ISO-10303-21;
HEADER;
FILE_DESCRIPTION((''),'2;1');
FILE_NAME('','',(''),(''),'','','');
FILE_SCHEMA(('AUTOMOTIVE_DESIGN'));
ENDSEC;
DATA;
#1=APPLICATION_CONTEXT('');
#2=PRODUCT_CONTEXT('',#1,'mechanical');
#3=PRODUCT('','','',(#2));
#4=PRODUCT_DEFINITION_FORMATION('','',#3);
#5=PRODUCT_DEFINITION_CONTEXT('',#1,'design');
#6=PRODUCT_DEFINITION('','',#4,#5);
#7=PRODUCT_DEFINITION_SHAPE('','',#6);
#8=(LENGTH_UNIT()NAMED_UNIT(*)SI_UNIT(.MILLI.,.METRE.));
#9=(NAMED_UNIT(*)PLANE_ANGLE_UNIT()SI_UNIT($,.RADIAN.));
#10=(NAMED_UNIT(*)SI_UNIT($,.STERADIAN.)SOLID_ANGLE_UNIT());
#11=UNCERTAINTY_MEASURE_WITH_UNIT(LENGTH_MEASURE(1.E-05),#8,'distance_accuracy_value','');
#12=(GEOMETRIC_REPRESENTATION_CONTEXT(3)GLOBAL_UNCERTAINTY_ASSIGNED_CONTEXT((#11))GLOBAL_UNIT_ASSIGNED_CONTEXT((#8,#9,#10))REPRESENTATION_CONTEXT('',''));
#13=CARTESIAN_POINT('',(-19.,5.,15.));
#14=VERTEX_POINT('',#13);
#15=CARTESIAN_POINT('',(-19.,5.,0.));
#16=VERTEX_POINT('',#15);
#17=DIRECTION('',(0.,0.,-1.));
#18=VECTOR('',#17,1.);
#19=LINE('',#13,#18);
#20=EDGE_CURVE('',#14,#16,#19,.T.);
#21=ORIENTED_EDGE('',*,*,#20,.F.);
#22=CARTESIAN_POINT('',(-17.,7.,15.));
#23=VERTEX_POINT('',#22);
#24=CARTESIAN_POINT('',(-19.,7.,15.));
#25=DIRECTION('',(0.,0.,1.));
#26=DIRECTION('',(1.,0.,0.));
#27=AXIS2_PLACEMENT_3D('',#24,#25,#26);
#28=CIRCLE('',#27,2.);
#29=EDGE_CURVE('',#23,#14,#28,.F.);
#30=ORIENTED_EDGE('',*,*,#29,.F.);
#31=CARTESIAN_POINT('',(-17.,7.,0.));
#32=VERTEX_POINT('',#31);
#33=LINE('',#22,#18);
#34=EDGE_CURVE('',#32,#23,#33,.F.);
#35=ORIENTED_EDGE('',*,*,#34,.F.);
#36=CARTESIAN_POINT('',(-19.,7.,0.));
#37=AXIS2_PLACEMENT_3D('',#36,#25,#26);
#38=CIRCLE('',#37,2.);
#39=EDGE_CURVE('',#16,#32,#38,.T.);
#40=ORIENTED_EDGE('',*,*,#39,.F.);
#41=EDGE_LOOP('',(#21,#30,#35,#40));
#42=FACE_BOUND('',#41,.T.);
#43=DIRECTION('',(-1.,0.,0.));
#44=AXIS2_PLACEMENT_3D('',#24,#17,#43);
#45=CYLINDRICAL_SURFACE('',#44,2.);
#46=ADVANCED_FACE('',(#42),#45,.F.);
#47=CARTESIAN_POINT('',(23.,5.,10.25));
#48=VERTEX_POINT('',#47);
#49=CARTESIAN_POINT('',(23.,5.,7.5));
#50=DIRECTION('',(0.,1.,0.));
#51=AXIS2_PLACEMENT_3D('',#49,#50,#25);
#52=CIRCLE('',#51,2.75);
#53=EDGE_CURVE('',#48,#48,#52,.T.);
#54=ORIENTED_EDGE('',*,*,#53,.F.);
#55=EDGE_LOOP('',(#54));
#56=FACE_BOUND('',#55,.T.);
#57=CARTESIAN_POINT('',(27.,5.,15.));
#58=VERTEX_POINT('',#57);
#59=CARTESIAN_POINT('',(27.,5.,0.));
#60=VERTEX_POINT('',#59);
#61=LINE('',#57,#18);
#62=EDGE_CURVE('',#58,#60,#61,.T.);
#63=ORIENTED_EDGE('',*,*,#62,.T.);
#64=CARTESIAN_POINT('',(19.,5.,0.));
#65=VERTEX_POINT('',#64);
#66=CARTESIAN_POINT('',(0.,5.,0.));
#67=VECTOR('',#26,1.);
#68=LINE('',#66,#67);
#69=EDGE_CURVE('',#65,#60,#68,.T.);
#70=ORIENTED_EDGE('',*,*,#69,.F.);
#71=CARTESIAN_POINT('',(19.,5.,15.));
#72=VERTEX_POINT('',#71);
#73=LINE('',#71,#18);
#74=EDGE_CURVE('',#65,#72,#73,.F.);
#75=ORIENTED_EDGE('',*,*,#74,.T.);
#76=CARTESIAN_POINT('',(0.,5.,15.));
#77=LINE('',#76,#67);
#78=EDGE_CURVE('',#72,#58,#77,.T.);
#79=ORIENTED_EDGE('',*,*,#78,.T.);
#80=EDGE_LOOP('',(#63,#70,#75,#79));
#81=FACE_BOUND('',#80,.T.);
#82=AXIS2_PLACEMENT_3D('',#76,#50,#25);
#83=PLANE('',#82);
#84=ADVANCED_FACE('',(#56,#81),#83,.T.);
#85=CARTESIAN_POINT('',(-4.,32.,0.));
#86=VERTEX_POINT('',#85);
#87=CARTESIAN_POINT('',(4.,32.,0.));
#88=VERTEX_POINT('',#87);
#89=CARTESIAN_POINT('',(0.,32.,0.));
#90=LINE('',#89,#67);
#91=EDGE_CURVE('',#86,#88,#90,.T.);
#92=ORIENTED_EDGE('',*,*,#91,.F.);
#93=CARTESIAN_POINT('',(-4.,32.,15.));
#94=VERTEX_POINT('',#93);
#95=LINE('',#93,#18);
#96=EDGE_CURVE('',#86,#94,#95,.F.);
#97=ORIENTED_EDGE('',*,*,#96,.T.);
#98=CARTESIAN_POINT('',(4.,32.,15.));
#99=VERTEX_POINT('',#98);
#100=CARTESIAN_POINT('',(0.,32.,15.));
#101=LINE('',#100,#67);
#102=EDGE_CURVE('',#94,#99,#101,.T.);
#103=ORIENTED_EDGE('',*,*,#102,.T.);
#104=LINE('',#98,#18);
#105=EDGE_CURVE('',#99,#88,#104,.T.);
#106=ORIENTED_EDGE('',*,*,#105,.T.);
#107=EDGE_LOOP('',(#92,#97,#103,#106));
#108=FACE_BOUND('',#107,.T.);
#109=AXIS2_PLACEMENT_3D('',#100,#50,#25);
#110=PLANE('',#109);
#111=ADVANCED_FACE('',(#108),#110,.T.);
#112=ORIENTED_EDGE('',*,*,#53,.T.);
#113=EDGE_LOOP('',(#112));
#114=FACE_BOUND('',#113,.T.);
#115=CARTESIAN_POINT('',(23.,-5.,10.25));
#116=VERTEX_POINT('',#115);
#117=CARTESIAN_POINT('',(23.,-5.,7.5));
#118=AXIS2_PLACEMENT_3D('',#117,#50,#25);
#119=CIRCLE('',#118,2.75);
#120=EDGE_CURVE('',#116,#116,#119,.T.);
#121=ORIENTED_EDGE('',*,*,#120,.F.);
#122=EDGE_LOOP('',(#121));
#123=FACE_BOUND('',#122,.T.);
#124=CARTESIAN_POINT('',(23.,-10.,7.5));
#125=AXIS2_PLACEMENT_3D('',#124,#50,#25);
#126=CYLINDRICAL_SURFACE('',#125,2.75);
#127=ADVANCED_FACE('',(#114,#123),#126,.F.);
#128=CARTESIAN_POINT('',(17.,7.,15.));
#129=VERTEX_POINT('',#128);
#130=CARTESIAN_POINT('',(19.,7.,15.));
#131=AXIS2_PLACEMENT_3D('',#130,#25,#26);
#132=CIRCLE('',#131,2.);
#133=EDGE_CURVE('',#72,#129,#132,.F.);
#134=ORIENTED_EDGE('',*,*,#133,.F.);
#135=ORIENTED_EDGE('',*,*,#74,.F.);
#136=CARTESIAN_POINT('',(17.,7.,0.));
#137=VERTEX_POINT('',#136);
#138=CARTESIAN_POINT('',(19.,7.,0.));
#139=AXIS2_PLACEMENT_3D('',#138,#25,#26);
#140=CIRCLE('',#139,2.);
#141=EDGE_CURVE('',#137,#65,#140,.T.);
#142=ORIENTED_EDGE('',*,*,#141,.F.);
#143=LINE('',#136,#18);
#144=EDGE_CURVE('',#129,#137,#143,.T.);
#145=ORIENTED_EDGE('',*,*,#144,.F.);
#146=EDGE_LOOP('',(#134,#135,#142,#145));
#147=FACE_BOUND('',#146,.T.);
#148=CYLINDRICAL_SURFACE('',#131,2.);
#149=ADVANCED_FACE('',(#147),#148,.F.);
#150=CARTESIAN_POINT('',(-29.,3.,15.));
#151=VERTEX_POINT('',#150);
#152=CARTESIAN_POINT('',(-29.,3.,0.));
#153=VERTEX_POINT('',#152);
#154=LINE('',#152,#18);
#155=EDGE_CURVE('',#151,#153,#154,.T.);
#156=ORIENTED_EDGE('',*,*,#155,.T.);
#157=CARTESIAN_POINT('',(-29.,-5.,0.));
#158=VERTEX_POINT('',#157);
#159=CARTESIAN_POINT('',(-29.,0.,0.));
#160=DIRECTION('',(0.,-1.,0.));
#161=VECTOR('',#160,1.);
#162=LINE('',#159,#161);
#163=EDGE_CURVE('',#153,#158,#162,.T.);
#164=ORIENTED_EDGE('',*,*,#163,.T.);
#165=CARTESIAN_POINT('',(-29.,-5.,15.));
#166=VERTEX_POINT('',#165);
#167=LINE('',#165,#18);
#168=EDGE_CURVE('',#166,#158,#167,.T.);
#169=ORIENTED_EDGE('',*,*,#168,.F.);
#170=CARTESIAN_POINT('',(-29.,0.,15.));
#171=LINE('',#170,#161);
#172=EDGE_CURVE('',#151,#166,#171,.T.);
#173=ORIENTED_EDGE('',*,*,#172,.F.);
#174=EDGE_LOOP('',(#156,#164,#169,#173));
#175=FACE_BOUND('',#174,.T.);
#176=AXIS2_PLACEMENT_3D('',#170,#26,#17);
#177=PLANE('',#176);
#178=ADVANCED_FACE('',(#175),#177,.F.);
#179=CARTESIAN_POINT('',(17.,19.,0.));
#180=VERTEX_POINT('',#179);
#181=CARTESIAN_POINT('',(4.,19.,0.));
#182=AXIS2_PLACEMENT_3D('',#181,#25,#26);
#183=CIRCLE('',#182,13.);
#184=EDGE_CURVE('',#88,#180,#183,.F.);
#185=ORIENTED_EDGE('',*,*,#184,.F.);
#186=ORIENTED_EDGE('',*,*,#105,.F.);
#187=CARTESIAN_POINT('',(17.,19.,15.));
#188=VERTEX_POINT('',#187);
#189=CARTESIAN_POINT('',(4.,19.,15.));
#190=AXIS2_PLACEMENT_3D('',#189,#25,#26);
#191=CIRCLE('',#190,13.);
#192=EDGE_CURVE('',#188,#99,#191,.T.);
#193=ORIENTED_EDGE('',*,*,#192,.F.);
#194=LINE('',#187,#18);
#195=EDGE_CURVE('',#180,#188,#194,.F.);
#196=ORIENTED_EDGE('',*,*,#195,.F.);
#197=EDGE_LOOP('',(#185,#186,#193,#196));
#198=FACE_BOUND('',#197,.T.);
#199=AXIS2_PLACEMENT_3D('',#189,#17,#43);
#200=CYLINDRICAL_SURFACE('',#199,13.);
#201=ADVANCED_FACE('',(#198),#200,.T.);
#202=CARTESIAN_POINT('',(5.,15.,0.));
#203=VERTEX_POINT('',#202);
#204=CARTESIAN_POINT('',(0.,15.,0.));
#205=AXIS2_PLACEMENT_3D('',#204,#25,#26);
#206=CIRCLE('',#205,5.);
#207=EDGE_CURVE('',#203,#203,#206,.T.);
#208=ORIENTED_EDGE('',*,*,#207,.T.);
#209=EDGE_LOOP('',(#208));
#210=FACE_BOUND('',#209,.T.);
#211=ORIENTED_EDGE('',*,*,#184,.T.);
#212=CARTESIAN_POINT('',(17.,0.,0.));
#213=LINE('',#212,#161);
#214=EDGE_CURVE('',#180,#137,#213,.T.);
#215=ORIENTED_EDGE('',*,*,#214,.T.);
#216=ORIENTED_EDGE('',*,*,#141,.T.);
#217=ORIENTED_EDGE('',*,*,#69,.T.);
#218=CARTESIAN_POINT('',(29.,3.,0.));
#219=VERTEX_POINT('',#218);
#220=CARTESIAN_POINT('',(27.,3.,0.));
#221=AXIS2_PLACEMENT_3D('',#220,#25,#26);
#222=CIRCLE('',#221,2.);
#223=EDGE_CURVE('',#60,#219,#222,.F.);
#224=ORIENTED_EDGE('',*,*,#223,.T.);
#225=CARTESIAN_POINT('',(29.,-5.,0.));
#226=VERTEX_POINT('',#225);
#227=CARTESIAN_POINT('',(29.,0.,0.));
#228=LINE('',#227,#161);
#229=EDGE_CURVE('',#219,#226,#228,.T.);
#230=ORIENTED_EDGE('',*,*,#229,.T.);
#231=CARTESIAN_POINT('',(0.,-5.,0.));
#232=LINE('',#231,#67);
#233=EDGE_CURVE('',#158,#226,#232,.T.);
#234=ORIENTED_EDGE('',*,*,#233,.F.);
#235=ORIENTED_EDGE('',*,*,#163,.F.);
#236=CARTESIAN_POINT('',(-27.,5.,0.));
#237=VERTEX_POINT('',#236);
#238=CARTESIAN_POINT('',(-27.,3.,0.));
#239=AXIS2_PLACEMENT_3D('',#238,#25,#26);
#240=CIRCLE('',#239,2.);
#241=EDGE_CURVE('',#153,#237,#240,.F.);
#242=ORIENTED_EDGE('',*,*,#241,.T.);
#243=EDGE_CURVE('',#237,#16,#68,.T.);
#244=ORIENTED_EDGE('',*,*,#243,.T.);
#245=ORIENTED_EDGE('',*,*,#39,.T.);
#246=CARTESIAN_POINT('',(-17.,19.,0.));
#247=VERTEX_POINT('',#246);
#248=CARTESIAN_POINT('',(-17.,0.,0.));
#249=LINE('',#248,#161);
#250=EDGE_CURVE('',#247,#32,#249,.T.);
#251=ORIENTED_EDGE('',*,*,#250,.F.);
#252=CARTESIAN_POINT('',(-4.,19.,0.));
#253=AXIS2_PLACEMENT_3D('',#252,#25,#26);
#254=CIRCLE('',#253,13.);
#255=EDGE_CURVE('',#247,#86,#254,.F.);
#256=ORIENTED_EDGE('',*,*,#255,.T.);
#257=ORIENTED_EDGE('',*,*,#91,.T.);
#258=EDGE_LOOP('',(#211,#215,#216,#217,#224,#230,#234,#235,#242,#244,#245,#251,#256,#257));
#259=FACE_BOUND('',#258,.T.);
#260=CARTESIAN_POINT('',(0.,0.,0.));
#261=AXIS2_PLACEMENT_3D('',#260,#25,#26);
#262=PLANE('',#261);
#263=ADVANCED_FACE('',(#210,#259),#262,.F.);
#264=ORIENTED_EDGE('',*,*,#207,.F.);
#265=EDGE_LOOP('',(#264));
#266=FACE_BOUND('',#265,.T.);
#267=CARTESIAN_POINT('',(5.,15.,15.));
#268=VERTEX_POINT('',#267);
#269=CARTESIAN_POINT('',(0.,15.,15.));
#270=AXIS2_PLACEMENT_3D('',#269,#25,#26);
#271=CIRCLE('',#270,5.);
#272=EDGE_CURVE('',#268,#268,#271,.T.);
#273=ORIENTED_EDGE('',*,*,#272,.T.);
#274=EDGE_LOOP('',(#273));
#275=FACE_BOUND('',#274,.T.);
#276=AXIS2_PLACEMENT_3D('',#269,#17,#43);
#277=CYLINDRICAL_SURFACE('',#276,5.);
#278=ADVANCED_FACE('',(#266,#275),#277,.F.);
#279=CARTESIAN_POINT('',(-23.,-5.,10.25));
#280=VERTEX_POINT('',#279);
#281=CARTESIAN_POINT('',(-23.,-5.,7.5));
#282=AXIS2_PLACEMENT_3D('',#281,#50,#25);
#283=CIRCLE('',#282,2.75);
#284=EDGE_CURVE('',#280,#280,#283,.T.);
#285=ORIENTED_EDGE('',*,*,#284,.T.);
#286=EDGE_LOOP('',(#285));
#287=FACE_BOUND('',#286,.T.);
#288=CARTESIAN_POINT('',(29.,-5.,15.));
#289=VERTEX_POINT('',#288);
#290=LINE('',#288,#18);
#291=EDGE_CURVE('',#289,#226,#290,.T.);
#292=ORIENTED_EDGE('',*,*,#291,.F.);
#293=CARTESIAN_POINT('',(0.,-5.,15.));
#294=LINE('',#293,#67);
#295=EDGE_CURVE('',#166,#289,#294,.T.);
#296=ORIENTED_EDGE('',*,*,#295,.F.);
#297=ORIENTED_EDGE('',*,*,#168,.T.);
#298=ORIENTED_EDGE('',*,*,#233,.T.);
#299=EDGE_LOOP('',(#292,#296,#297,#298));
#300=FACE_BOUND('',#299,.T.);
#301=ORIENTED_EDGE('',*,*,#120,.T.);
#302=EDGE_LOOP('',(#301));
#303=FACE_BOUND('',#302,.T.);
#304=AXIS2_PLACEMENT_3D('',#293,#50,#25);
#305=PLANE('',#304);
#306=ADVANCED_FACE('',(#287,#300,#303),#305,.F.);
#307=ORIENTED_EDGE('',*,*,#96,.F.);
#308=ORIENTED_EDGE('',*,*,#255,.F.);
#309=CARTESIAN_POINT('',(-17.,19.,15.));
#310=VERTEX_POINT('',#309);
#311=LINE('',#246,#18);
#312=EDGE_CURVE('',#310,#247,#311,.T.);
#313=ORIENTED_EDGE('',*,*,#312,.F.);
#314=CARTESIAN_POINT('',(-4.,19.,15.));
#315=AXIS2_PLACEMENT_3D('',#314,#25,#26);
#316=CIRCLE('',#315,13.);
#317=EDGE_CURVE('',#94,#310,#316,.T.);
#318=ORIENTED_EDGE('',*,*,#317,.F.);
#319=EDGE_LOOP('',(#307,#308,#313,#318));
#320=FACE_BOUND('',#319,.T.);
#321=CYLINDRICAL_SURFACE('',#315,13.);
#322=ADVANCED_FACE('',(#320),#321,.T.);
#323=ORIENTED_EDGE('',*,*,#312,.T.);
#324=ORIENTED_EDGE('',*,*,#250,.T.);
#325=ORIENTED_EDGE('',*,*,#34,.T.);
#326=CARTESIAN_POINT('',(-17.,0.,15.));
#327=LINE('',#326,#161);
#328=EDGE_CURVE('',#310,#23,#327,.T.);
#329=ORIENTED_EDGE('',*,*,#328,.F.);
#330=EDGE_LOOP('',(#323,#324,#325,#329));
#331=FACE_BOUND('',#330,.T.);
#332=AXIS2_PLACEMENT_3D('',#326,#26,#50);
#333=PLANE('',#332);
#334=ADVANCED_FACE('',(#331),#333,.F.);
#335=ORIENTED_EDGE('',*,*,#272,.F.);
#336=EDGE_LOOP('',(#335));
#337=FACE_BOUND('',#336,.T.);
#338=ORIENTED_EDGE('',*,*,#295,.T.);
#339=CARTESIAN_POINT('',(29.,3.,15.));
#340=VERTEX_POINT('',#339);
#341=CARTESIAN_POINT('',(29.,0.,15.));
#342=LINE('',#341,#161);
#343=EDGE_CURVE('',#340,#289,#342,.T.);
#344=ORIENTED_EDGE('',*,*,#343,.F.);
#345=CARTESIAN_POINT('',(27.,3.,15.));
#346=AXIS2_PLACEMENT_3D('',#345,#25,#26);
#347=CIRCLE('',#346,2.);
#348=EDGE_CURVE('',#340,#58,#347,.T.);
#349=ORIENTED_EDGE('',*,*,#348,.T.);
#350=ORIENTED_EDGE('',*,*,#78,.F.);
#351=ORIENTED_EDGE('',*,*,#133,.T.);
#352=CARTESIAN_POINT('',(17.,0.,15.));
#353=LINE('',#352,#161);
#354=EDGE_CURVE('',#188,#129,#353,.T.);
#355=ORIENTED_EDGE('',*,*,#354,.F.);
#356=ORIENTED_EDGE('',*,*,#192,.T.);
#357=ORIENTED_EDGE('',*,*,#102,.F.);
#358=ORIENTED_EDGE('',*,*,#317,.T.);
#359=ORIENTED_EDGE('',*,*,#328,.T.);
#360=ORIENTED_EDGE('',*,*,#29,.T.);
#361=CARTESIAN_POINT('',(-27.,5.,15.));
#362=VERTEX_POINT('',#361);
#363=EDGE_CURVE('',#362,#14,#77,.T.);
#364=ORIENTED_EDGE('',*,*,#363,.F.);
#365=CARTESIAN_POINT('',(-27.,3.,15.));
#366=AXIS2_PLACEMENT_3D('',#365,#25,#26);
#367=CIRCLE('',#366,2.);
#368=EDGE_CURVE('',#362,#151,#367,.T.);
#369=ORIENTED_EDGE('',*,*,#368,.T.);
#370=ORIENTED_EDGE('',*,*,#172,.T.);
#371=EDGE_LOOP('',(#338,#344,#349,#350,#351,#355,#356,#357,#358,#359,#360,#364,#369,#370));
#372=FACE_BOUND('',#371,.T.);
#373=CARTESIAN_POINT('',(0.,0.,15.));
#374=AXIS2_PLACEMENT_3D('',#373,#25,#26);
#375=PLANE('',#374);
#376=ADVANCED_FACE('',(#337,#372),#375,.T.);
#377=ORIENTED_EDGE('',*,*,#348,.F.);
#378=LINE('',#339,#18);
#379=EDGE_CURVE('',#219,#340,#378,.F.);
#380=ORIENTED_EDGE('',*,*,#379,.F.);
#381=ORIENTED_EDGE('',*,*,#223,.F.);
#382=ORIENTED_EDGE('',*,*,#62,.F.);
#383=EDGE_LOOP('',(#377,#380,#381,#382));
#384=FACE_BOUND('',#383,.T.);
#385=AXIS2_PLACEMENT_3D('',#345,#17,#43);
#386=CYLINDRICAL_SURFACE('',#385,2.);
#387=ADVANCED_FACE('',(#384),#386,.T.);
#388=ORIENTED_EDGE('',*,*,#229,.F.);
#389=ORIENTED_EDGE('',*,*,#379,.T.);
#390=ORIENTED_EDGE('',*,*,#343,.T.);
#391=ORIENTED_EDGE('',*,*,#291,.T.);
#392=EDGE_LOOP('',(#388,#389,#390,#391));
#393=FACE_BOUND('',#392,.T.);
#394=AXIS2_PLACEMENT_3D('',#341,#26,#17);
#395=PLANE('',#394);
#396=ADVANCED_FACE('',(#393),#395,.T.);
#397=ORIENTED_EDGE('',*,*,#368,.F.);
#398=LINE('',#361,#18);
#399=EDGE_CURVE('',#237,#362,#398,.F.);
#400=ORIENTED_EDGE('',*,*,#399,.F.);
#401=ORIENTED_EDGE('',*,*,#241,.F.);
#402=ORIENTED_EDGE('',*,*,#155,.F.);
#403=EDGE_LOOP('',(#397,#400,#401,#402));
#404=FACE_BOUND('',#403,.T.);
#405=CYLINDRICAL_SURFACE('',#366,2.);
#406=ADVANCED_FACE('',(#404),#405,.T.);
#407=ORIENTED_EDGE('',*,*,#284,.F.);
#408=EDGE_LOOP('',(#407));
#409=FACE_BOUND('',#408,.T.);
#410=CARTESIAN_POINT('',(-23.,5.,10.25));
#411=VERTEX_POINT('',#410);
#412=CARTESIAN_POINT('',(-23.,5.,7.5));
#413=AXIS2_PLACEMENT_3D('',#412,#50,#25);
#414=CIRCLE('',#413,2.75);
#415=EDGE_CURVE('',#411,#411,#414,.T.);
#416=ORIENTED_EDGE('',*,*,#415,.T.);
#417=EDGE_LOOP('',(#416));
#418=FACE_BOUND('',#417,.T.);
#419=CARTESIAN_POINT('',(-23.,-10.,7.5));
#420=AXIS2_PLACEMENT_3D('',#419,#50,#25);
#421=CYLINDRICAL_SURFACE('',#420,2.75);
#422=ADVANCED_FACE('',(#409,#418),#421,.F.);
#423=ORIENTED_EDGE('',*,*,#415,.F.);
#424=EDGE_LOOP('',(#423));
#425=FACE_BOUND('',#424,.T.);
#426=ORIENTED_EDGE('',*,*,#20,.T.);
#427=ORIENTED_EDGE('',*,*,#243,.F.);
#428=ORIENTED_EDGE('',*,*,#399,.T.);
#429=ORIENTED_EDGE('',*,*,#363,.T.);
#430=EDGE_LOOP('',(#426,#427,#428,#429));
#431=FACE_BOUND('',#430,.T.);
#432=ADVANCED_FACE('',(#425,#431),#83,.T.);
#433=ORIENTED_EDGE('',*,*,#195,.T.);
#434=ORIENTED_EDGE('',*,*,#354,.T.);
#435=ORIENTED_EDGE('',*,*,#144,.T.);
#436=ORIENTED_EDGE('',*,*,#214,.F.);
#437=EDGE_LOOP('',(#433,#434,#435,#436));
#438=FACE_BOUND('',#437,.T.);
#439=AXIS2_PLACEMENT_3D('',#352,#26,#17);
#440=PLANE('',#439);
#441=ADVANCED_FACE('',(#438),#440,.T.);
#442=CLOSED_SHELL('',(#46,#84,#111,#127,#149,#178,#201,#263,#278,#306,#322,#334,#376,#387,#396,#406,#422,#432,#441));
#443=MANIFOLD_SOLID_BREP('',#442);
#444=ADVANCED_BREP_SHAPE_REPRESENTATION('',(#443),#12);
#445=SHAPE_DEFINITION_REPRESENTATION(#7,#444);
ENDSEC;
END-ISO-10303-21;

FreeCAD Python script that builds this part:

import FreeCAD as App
import Part
import Sketcher
from FreeCAD import Vector


def edges_at(feature, points):
    """Names of the edges that pass closest to the given points."""
    edges = feature.Shape.Edges
    near = lambda p: min(range(len(edges)), key=lambda i: edges[i].distToShape(Part.Vertex(*p))[0])
    return sorted({f"Edge{near(p) + 1}" for p in points})

doc = App.newDocument("Part")
body = doc.addObject("PartDesign::Body", "Body")

# Sketch on XY plane
sketch1 = body.newObject("Sketcher::SketchObject", "Sketch")
sketch1.AttachmentSupport = (doc.getObject("XY_Plane"), [""])
sketch1.MapMode = "FlatFace"
sketch1.addGeometry(Part.LineSegment(Vector(-29, 5, 0), Vector(-29, -5, 0)), False)
sketch1.addGeometry(Part.LineSegment(Vector(-29, -5, 0), Vector(29, -5, 0)), False)
sketch1.addGeometry(Part.LineSegment(Vector(29, -5, 0), Vector(29, 5, 0)), False)
sketch1.addGeometry(Part.LineSegment(Vector(29, 5, 0), Vector(17, 5, 0)), False)
sketch1.addGeometry(Part.LineSegment(Vector(17, 5, 0), Vector(17, 32, 0)), False)
sketch1.addGeometry(Part.LineSegment(Vector(17, 32, 0), Vector(-17, 32, 0)), False)
sketch1.addGeometry(Part.LineSegment(Vector(-17, 32, 0), Vector(-17, 5, 0)), False)
sketch1.addGeometry(Part.LineSegment(Vector(-17, 5, 0), Vector(-29, 5, 0)), False)
sketch1.addGeometry(Part.Circle(Vector(0, 15, 0), Vector(0, 0, 1), 5), False)
sketch1.addConstraint(Sketcher.Constraint("Coincident", 0, 2, 1, 1))
sketch1.addConstraint(Sketcher.Constraint("Coincident", 1, 2, 2, 1))
sketch1.addConstraint(Sketcher.Constraint("Coincident", 2, 2, 3, 1))
sketch1.addConstraint(Sketcher.Constraint("Coincident", 3, 2, 4, 1))
sketch1.addConstraint(Sketcher.Constraint("Coincident", 4, 2, 5, 1))
sketch1.addConstraint(Sketcher.Constraint("Coincident", 5, 2, 6, 1))
sketch1.addConstraint(Sketcher.Constraint("Coincident", 6, 2, 7, 1))
sketch1.addConstraint(Sketcher.Constraint("Coincident", 7, 2, 0, 1))
sketch1.addConstraint(Sketcher.Constraint("Vertical", 0))
sketch1.addConstraint(Sketcher.Constraint("Horizontal", 1))
sketch1.addConstraint(Sketcher.Constraint("Vertical", 2))
sketch1.addConstraint(Sketcher.Constraint("Horizontal", 3))
sketch1.addConstraint(Sketcher.Constraint("Vertical", 4))
sketch1.addConstraint(Sketcher.Constraint("Horizontal", 5))
sketch1.addConstraint(Sketcher.Constraint("Vertical", 6))
sketch1.addConstraint(Sketcher.Constraint("Horizontal", 7))
sketch1.addConstraint(Sketcher.Constraint("Symmetric", 0, 2, 2, 2, -1, 1))
sketch1.addConstraint(Sketcher.Constraint("Symmetric", 3, 2, 6, 2, -2))
sketch1.addConstraint(Sketcher.Constraint("PointOnObject", 8, 3, -2))
sketch1.addConstraint(Sketcher.Constraint("Diameter", 8, 10.0))
sketch1.addConstraint(Sketcher.Constraint("DistanceX", 1, 1, 1, 2, 58.0))
sketch1.addConstraint(Sketcher.Constraint("DistanceX", 3, 2, 3, 1, 12.0))
sketch1.addConstraint(Sketcher.Constraint("DistanceY", 0, 2, 0, 1, 10.0))
sketch1.addConstraint(Sketcher.Constraint("DistanceY", 4, 1, 4, 2, 27.0))
sketch1.addConstraint(Sketcher.Constraint("DistanceY", -1, 1, 8, 3, 15.0))
pad1 = body.newObject("PartDesign::Pad", "Pad")
pad1.Profile = sketch1
pad1.Length = 15

# Sketch on XZ plane
sketch2 = body.newObject("Sketcher::SketchObject", "Sketch001")
sketch2.AttachmentSupport = (doc.getObject("XZ_Plane"), [""])
sketch2.MapMode = "FlatFace"
sketch2.AttachmentOffset = App.Placement(Vector(0, 0, -5), App.Rotation())
sketch2.addGeometry(Part.Circle(Vector(-23, 7.5, 0), Vector(0, 0, 1), 2.8), False)
sketch2.addGeometry(Part.Circle(Vector(23, 7.5, 0), Vector(0, 0, 1), 2.8), False)
sketch2.addConstraint(Sketcher.Constraint("Equal", 0, 1))
sketch2.addConstraint(Sketcher.Constraint("Symmetric", 0, 3, 1, 3, -2))
sketch2.addConstraint(Sketcher.Constraint("Diameter", 0, 5.5))
sketch2.addConstraint(Sketcher.Constraint("DistanceX", 0, 3, -1, 1, 23.0))
sketch2.addConstraint(Sketcher.Constraint("DistanceY", -1, 1, 0, 3, 7.5))
pocket1 = body.newObject("PartDesign::Pocket", "Pocket")
pocket1.Profile = sketch2
pocket1.Length = 15
pocket1.Reversed = True
doc.recompute()

fillet = body.newObject("PartDesign::Fillet", "Fillet")
fillet.Base = (pocket1, edges_at(pocket1, [(-17, 32, 7.5), (17, 32, 7.5)]))
fillet.Radius = 13
doc.recompute()

fillet2 = body.newObject("PartDesign::Fillet", "Fillet001")
fillet2.Base = (fillet, edges_at(fillet, [
    (-29, 5, 7.5),
    (-17, 5, 7.5),
    (17, 5, 7.5),
    (29, 5, 7.5),
]))
fillet2.Radius = 2

doc.recompute()
